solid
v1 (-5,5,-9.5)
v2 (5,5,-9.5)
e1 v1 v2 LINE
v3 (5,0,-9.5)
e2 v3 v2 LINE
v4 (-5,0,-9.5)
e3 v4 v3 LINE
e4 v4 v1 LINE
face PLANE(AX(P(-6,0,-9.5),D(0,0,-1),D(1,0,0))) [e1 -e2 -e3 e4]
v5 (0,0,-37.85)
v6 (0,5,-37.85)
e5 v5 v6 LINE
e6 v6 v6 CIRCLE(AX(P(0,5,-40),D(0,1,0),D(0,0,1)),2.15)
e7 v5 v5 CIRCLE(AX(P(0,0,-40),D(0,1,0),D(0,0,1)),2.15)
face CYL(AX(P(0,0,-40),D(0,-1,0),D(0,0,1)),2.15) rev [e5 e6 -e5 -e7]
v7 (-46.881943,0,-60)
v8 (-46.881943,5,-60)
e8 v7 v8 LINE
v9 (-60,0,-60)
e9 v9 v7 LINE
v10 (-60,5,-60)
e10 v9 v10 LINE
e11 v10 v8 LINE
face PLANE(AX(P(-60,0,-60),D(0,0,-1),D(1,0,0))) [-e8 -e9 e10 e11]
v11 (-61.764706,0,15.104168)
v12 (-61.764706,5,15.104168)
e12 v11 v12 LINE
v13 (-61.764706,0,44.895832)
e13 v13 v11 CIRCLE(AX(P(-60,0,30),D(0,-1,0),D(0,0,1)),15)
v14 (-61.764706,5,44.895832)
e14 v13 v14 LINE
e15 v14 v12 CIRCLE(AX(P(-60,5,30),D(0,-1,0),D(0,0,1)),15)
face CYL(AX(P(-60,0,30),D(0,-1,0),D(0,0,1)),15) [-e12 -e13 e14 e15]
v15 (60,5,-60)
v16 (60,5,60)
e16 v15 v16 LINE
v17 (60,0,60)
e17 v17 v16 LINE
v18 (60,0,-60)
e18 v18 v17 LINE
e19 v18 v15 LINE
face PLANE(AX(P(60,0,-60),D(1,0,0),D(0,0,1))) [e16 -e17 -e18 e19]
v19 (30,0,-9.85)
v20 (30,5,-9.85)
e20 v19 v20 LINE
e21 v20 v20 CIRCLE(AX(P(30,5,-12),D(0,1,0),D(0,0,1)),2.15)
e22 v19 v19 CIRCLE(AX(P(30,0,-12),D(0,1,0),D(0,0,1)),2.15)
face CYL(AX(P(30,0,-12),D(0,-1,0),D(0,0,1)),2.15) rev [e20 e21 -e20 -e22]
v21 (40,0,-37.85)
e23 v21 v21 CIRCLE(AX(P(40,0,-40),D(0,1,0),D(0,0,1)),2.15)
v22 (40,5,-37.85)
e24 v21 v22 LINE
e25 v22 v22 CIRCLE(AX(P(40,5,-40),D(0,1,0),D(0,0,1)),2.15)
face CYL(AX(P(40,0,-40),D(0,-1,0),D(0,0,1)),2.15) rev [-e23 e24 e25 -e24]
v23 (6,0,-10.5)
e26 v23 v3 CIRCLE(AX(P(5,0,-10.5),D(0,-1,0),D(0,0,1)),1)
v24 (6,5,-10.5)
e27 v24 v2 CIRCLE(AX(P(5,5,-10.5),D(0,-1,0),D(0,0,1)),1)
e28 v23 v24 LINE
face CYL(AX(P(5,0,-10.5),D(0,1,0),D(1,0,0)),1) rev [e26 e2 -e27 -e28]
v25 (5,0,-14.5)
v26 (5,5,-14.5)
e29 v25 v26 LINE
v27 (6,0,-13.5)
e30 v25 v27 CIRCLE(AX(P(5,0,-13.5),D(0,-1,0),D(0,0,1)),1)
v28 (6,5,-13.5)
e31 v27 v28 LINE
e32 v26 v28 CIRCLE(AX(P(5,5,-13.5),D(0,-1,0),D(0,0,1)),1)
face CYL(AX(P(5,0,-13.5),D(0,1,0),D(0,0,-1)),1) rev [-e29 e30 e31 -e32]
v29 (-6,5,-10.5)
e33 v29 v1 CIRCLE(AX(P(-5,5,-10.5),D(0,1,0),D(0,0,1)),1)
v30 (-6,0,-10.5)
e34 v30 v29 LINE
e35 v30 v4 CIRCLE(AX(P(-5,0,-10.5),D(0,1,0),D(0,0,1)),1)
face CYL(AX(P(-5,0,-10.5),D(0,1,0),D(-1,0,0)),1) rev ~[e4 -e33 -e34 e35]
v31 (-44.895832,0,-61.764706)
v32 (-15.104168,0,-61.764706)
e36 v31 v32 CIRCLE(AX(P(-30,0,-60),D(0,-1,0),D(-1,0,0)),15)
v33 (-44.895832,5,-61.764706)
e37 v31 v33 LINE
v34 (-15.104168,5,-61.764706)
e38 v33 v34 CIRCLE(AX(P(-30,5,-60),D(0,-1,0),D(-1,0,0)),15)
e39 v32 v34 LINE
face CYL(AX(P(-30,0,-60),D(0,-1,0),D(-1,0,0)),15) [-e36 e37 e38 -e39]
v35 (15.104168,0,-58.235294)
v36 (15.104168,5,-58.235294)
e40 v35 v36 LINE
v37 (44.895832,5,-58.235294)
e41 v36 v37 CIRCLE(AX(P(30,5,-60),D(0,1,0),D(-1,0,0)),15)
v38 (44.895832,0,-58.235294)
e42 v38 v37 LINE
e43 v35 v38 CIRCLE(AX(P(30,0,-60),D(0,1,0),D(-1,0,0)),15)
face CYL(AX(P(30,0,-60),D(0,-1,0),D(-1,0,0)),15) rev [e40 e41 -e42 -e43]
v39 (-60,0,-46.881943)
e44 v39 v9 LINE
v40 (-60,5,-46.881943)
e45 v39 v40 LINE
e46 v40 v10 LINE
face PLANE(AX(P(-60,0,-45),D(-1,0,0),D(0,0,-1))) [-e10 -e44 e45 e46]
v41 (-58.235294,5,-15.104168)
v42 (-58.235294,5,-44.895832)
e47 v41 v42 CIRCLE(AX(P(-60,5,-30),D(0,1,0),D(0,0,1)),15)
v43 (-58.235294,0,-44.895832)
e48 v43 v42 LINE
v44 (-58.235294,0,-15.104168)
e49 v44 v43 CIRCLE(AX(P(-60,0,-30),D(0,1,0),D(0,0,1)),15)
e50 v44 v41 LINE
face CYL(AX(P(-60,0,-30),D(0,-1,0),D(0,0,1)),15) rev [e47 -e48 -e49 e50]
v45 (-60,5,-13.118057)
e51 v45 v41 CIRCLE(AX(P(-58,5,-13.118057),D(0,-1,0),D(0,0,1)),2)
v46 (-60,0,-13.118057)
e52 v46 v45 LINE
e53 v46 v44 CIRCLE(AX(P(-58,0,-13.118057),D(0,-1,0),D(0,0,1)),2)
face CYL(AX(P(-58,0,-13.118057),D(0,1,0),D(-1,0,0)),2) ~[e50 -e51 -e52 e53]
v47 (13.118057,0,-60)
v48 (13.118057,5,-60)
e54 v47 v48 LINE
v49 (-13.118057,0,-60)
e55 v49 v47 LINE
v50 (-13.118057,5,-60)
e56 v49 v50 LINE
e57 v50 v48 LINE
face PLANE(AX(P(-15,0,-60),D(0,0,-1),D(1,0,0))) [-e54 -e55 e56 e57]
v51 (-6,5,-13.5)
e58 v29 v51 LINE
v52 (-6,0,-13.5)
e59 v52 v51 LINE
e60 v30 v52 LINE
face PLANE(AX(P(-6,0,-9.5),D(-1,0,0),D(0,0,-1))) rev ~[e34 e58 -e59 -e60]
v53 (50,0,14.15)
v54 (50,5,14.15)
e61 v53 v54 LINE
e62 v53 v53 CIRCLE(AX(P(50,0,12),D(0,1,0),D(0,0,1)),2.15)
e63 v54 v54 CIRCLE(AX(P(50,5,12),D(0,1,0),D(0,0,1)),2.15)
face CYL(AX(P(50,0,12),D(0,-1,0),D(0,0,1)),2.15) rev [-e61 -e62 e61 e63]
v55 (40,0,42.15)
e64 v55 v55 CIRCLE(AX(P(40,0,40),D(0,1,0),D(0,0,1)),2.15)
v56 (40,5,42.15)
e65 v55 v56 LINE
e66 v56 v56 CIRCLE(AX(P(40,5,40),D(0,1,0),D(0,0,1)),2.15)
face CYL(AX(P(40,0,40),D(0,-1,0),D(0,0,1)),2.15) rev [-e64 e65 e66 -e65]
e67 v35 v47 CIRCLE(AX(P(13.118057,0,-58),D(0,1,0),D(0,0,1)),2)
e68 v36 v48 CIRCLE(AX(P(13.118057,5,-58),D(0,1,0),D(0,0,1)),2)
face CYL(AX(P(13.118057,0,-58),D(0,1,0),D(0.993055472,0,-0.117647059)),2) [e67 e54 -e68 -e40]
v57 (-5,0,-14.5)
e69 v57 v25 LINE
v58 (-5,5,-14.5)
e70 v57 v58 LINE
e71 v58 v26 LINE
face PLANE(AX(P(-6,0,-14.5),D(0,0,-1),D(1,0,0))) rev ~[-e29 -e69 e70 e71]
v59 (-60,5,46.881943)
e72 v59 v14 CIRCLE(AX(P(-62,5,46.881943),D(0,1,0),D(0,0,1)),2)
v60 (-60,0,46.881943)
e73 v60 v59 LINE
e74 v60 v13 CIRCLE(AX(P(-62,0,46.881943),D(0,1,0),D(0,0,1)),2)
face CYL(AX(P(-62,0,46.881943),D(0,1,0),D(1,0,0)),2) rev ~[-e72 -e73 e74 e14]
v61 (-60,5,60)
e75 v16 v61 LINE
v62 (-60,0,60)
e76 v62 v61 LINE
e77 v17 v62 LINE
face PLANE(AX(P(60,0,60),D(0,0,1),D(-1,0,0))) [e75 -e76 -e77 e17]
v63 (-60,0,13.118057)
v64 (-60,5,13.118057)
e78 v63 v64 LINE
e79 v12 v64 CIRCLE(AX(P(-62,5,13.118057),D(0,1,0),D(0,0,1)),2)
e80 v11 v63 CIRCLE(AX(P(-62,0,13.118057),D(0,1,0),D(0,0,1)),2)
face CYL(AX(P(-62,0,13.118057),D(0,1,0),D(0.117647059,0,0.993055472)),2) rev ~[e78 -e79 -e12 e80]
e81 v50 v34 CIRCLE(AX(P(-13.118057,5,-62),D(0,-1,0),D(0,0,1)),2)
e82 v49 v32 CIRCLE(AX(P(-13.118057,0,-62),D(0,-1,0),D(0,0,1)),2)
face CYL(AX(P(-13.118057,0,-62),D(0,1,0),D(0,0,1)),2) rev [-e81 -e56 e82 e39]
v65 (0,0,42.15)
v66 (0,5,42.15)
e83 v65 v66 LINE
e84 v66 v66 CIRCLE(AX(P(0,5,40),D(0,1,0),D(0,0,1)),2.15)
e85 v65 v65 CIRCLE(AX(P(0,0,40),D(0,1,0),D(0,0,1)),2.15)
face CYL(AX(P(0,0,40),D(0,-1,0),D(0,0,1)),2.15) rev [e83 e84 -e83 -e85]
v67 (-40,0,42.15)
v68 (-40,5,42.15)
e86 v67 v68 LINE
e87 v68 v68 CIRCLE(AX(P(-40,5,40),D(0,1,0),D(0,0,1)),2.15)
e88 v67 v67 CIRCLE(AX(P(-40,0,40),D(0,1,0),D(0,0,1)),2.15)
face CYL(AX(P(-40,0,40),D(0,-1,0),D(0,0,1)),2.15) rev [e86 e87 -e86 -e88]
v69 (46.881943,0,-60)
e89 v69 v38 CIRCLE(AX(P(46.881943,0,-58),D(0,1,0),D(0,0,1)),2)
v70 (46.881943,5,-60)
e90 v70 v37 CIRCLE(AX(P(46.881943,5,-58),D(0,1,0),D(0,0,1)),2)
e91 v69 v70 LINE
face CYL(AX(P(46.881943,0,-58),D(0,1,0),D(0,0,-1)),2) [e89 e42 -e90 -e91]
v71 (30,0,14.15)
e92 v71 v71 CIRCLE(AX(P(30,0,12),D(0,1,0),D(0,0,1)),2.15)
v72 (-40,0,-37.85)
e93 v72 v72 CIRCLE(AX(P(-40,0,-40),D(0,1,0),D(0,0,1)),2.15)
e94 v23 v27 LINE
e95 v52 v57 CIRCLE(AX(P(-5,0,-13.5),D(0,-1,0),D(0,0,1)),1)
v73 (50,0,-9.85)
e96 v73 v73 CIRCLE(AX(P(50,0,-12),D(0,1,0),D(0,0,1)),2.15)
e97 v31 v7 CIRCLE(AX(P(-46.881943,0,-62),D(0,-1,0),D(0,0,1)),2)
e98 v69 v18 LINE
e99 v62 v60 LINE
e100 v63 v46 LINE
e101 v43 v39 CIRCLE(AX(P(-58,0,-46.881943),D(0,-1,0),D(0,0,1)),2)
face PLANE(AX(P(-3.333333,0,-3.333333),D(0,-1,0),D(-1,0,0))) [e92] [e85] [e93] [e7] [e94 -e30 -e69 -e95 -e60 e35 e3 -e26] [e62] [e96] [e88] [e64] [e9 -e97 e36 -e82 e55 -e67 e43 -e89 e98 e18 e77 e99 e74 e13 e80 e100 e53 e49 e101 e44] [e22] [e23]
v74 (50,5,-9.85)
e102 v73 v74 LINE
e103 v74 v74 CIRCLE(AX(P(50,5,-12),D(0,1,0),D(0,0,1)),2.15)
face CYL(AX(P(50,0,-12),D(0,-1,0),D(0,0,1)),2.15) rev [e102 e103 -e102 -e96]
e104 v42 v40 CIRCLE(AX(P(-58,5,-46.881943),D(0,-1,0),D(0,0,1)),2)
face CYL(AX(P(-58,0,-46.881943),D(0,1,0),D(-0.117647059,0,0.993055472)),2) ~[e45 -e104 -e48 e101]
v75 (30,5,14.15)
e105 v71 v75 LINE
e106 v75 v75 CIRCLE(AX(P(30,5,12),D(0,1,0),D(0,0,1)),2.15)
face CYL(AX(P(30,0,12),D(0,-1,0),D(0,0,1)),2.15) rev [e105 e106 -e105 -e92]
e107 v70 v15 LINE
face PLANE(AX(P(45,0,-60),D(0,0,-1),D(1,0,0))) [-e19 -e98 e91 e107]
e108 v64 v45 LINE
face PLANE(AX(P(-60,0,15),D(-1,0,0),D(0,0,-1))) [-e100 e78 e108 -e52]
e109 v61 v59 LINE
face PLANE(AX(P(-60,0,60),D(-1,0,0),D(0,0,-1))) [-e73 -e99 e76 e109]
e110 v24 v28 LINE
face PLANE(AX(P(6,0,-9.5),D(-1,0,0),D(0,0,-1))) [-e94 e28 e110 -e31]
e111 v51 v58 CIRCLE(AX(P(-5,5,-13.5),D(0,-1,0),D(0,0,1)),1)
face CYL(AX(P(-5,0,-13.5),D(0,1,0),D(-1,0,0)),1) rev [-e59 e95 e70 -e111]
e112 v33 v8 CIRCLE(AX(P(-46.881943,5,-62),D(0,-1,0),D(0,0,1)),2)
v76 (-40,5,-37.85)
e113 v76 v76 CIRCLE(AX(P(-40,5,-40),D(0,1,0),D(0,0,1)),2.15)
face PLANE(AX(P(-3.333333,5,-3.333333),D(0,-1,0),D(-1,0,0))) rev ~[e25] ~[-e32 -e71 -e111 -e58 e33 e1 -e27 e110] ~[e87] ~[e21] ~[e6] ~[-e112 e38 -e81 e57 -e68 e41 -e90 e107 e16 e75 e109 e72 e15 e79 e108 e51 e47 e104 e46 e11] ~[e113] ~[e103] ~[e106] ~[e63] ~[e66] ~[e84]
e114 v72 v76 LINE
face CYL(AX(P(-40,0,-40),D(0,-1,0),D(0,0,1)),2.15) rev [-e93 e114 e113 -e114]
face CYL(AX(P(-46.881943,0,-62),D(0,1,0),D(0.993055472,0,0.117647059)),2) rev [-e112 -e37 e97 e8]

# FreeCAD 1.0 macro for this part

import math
import FreeCAD as App
import Part
import Sketcher
from FreeCAD import Vector


def edges_at(feature, points):
    """Names of the edges that pass closest to the given points."""
    edges = feature.Shape.Edges
    near = lambda p: min(range(len(edges)), key=lambda i: edges[i].distToShape(Part.Vertex(*p))[0])
    return sorted({f"Edge{near(p) + 1}" for p in points})


def add_polygon(sketch, points):
    """Adds a closed chain of lines whose ends are joined by coincident constraints."""
    first, n = sketch.GeometryCount, len(points)
    for a, b in zip(points, points[1:] + points[:1]):
        sketch.addGeometry(Part.LineSegment(App.Vector(*a, 0), App.Vector(*b, 0)), False)
    for i in range(n):
        sketch.addConstraint(Sketcher.Constraint("Coincident", first + i, 2, first + (i + 1) % n, 1))

doc = App.newDocument("Part")
params = doc.addObject("Spreadsheet::Sheet", "Params")
for row, (alias, value) in enumerate([
    ("sketch1_radius", "15 mm"),
    ("sketch1_diameter", "4.3 mm"),
    ("sketch1_width", "120 mm"),
    ("sketch1_width2", "15 mm"),
    ("sketch1_width3", "12 mm"),
    ("pad1_length", "5 mm"),
    ("fillet_radius", "2 mm"),
    ("fillet2_radius", "1 mm"),
], start=1):
    params.set(f"A{row}", alias)
    params.set(f"B{row}", "=" + value)
    params.setAlias(f"B{row}", alias)

body = doc.addObject("PartDesign::Body", "Body")

# Sketch on XZ plane
sketch1 = doc.addObject("Sketcher::SketchObject", "Sketch")
body.addObject(sketch1)
sketch1.AttachmentSupport = (doc.XZ_Plane, [""])
sketch1.MapMode = "FlatFace"
sketch1.addGeometry(Part.LineSegment(Vector(-60, 60, 0), Vector(60, 60, 0)), False)  # 0
sketch1.addGeometry(Part.LineSegment(Vector(60, 60, 0), Vector(60, -60, 0)), False)  # 1
sketch1.addGeometry(Part.LineSegment(Vector(60, -60, 0), Vector(45, -60, 0)), False)  # 2
sketch1.addGeometry(Part.ArcOfCircle(Part.Circle(Vector(30, -60, 0), Vector(0, 0, 1), 15), math.radians(0), math.radians(180)), False)  # 3
sketch1.addGeometry(Part.LineSegment(Vector(15, -60, 0), Vector(-15, -60, 0)), False)  # 4
sketch1.addGeometry(Part.ArcOfCircle(Part.Circle(Vector(-30, -60, 0), Vector(0, 0, 1), 15), math.radians(180), math.radians(360)), False)  # 5
sketch1.addGeometry(Part.LineSegment(Vector(-45, -60, 0), Vector(-60, -60, 0)), False)  # 6
sketch1.addGeometry(Part.LineSegment(Vector(-60, -60, 0), Vector(-60, -45, 0)), False)  # 7
sketch1.addGeometry(Part.ArcOfCircle(Part.Circle(Vector(-60, -30, 0), Vector(0, 0, 1), 15), math.radians(-90), math.radians(90)), False)  # 8
sketch1.addGeometry(Part.LineSegment(Vector(-60, -15, 0), Vector(-60, 15, 0)), False)  # 9
sketch1.addGeometry(Part.ArcOfCircle(Part.Circle(Vector(-60, 30, 0), Vector(0, 0, 1), 15), math.radians(90), math.radians(270)), False)  # 10
sketch1.addGeometry(Part.LineSegment(Vector(-60, 45, 0), Vector(-60, 60, 0)), False)  # 11
sketch1.addGeometry(Part.Circle(Vector(40, 40, 0), Vector(0, 0, 1), 2.1), False)  # 12
sketch1.addGeometry(Part.Circle(Vector(50, 12, 0), Vector(0, 0, 1), 2.1), False)  # 13
sketch1.addGeometry(Part.Circle(Vector(30, 12, 0), Vector(0, 0, 1), 2.1), False)  # 14
sketch1.addGeometry(Part.Circle(Vector(0, 40, 0), Vector(0, 0, 1), 2.1), False)  # 15
sketch1.addGeometry(Part.Circle(Vector(-40, 40, 0), Vector(0, 0, 1), 2.1), False)  # 16
sketch1.addGeometry(Part.Circle(Vector(50, -12, 0), Vector(0, 0, 1), 2.1), False)  # 17
sketch1.addGeometry(Part.Circle(Vector(30, -12, 0), Vector(0, 0, 1), 2.1), False)  # 18
sketch1.addGeometry(Part.Circle(Vector(40, -40, 0), Vector(0, 0, 1), 2.1), False)  # 19
add_polygon(sketch1, [(-6, -9.5), (-6, -14.5), (6, -14.5), (6, -9.5)])  # lines 20-23
sketch1.addGeometry(Part.Circle(Vector(0, -40, 0), Vector(0, 0, 1), 2.1), False)  # 24
sketch1.addGeometry(Part.Circle(Vector(-40, -40, 0), Vector(0, 0, 1), 2.1), False)  # 25
sketch1.addConstraint(Sketcher.Constraint("Coincident", 0, 2, 1, 1))
sketch1.addConstraint(Sketcher.Constraint("Coincident", 1, 2, 2, 1))
sketch1.addConstraint(Sketcher.Constraint("Coincident", 2, 2, 3, 1))
sketch1.addConstraint(Sketcher.Constraint("Coincident", 3, 2, 4, 1))
sketch1.addConstraint(Sketcher.Constraint("Coincident", 4, 2, 5, 2))
sketch1.addConstraint(Sketcher.Constraint("Coincident", 5, 1, 6, 1))
sketch1.addConstraint(Sketcher.Constraint("Coincident", 6, 2, 7, 1))
sketch1.addConstraint(Sketcher.Constraint("Coincident", 7, 2, 8, 1))
sketch1.addConstraint(Sketcher.Constraint("Coincident", 8, 2, 9, 1))
sketch1.addConstraint(Sketcher.Constraint("Coincident", 9, 2, 10, 2))
sketch1.addConstraint(Sketcher.Constraint("Coincident", 10, 1, 11, 1))
sketch1.addConstraint(Sketcher.Constraint("Coincident", 11, 2, 0, 1))
sketch1.addConstraint(Sketcher.Constraint("Horizontal", 0))
sketch1.addConstraint(Sketcher.Constraint("Vertical", 1))
sketch1.addConstraint(Sketcher.Constraint("Horizontal", 2))
sketch1.addConstraint(Sketcher.Constraint("Horizontal", 4))
sketch1.addConstraint(Sketcher.Constraint("Horizontal", 6))
sketch1.addConstraint(Sketcher.Constraint("Vertical", 7))
sketch1.addConstraint(Sketcher.Constraint("Vertical", 9))
sketch1.addConstraint(Sketcher.Constraint("Vertical", 11))
sketch1.addConstraint(Sketcher.Constraint("Vertical", 20))
sketch1.addConstraint(Sketcher.Constraint("Horizontal", 21))
sketch1.addConstraint(Sketcher.Constraint("Vertical", 22))
sketch1.addConstraint(Sketcher.Constraint("Horizontal", 23))
sketch1.addConstraint(Sketcher.Constraint("Equal", 3, 5))
sketch1.addConstraint(Sketcher.Constraint("Equal", 5, 8))
sketch1.addConstraint(Sketcher.Constraint("Equal", 8, 10))
sketch1.addConstraint(Sketcher.Constraint("Equal", 12, 13))
sketch1.addConstraint(Sketcher.Constraint("Equal", 13, 14))
sketch1.addConstraint(Sketcher.Constraint("Equal", 14, 15))
sketch1.addConstraint(Sketcher.Constraint("Equal", 15, 16))
sketch1.addConstraint(Sketcher.Constraint("Equal", 16, 17))
sketch1.addConstraint(Sketcher.Constraint("Equal", 17, 18))
sketch1.addConstraint(Sketcher.Constraint("Equal", 18, 19))
sketch1.addConstraint(Sketcher.Constraint("Equal", 19, 24))
sketch1.addConstraint(Sketcher.Constraint("Equal", 24, 25))
sketch1.addConstraint(Sketcher.Constraint("Symmetric", 16, 3, 19, 3, -1, 1))
sketch1.addConstraint(Sketcher.Constraint("Symmetric", 15, 3, 24, 3, -1, 1))
sketch1.addConstraint(Sketcher.Constraint("Symmetric", 12, 3, 25, 3, -1, 1))
sketch1.addConstraint(Sketcher.Constraint("Symmetric", 0, 2, 6, 2, -1, 1))
sketch1.addConstraint(Sketcher.Constraint("Symmetric", 1, 2, 11, 2, -1, 1))
sketch1.addConstraint(Sketcher.Constraint("Symmetric", 3, 3, 5, 3, -2))
sketch1.addConstraint(Sketcher.Constraint("Symmetric", 12, 3, 16, 3, -2))
sketch1.addConstraint(Sketcher.Constraint("Symmetric", 8, 3, 10, 3, -1))
sketch1.addConstraint(Sketcher.Constraint("Symmetric", 13, 3, 17, 3, -1))
sketch1.addConstraint(Sketcher.Constraint("Symmetric", 14, 3, 18, 3, -1))
sketch1.addConstraint(Sketcher.Constraint("PointOnObject", 15, 3, -2))
sketch1.addConstraint(Sketcher.Constraint("Horizontal", 13, 3, 14, 3))
sketch1.addConstraint(Sketcher.Constraint("Horizontal", 12, 3, 15, 3))
sketch1.addConstraint(Sketcher.Constraint("Horizontal", 5, 3, 1, 2))
sketch1.addConstraint(Sketcher.Constraint("Horizontal", 2, 2, 3, 2))
sketch1.addConstraint(Sketcher.Constraint("Vertical", 3, 3, 14, 3))
sketch1.addConstraint(Sketcher.Constraint("Vertical", 10, 3, 6, 2))
sketch1.addConstraint(Sketcher.Constraint("Vertical", 7, 2, 8, 2))
sketch1.addConstraint(Sketcher.Constraint("Equal", 0, 1))
sketch1.addConstraint(Sketcher.Constraint("Equal", 6, 7))
sketch1.addConstraint(Sketcher.Constraint("Radius", 3, 15.0))
sketch1.addConstraint(Sketcher.Constraint("Diameter", 12, 4.3))
sketch1.addConstraint(Sketcher.Constraint("DistanceX", 0, 1, 0, 2, 120.0))
sketch1.addConstraint(Sketcher.Constraint("DistanceX", 2, 2, 2, 1, 15.0))
sketch1.addConstraint(Sketcher.Constraint("DistanceX", 21, 1, 21, 2, 12.0))
sketch1.addConstraint(Sketcher.Constraint("DistanceY", 20, 2, 20, 1, 5.0))
sketch1.addConstraint(Sketcher.Constraint("DistanceX", -1, 1, 12, 3, 40.0))
sketch1.addConstraint(Sketcher.Constraint("DistanceY", -1, 1, 12, 3, 40.0))
sketch1.addConstraint(Sketcher.Constraint("DistanceX", -1, 1, 13, 3, 50.0))
sketch1.addConstraint(Sketcher.Constraint("DistanceY", -1, 1, 13, 3, 12.0))
sketch1.addConstraint(Sketcher.Constraint("DistanceX", 20, 2, -1, 1, 6.0))
sketch1.addConstraint(Sketcher.Constraint("DistanceY", 20, 2, -1, 1, 14.5))
sketch1.setExpression("Constraints[60]", "Params.sketch1_radius")
sketch1.setExpression("Constraints[61]", "Params.sketch1_diameter")
sketch1.setExpression("Constraints[62]", "Params.sketch1_width")
sketch1.setExpression("Constraints[63]", "Params.sketch1_width2")
sketch1.setExpression("Constraints[64]", "Params.sketch1_width3")
pad1 = doc.addObject("PartDesign::Pad", "Pad")
body.addObject(pad1)
pad1.Profile = sketch1
pad1.setExpression("Length", "Params.pad1_length")
pad1.Reversed = True
doc.recompute()

fillet = doc.addObject("PartDesign::Fillet", "Fillet")
body.addObject(fillet)
fillet.Base = (pad1, edges_at(pad1, [
    (-45, 2.5, -60),
    (-15, 2.5, -60),
    (15, 2.5, -60),
    (45, 2.5, -60),
    (-60, 2.5, 45),
    (-60, 2.5, 15),
    (-60, 2.5, -15),
    (-60, 2.5, -45),
]))
fillet.setExpression("Radius", "Params.fillet_radius")
doc.recompute()

fillet2 = doc.addObject("PartDesign::Fillet", "Fillet001")
body.addObject(fillet2)
fillet2.Base = (fillet, edges_at(fillet, [
    (-6, 2.5, -14.5),
    (-6, 2.5, -9.5),
    (6, 2.5, -9.5),
    (6, 2.5, -14.5),
]))
fillet2.setExpression("Radius", "Params.fillet2_radius")

doc.recompute()
